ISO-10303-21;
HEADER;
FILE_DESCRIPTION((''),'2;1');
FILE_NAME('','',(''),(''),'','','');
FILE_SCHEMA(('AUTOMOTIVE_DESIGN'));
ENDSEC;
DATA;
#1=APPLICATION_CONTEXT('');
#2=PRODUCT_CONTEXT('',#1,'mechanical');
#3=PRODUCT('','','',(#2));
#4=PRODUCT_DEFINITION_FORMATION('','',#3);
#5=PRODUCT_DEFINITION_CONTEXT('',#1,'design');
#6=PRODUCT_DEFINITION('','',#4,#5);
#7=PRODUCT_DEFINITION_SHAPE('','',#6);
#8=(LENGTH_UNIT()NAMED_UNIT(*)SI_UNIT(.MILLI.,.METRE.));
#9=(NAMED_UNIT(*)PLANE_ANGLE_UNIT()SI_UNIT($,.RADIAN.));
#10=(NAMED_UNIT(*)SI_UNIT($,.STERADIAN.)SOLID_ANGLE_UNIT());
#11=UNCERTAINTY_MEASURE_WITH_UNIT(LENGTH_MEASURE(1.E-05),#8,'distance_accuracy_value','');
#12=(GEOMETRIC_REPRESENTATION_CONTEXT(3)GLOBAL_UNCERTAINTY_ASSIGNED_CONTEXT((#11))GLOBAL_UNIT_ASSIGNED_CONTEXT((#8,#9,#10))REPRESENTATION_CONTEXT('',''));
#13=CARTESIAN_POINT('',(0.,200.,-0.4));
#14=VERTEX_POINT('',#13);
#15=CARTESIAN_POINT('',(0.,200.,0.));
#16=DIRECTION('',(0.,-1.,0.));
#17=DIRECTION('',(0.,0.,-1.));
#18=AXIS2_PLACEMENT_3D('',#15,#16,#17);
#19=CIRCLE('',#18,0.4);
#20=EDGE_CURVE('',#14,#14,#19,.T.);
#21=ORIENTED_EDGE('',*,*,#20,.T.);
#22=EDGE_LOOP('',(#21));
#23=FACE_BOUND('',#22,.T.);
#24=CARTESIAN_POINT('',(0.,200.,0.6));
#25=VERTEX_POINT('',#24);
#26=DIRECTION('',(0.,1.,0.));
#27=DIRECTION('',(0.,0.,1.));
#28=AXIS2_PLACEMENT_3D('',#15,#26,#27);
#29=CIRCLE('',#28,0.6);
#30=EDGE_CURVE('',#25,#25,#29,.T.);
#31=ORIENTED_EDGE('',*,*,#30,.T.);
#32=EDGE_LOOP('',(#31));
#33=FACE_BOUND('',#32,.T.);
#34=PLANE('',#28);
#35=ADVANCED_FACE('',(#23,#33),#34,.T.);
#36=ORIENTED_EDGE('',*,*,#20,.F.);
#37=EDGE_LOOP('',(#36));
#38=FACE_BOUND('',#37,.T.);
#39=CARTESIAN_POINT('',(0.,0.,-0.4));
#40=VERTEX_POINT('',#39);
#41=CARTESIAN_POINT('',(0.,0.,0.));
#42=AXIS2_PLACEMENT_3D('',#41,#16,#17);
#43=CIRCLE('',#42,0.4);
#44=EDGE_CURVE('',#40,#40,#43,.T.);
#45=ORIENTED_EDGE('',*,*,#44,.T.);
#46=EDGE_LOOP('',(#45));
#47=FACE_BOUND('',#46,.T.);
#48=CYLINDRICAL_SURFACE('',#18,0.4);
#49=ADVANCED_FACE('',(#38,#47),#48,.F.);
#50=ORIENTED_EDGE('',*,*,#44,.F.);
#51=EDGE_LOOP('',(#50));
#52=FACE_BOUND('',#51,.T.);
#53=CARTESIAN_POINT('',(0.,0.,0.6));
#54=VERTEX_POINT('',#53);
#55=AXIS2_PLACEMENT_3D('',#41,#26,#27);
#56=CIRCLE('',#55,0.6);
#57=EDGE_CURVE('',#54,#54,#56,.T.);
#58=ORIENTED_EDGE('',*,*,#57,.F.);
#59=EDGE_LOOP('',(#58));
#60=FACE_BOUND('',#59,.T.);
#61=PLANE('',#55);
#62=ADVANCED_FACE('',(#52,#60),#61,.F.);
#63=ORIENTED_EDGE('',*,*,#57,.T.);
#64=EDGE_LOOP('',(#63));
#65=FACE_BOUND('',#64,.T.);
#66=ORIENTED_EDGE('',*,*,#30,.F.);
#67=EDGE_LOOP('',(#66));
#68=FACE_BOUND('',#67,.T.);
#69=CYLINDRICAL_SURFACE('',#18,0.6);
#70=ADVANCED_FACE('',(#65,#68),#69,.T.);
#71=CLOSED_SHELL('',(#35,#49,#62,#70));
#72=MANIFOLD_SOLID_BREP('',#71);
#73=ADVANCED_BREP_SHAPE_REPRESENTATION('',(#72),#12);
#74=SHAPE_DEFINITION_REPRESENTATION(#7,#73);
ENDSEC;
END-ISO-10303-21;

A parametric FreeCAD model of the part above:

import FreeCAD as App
import Part
import Sketcher

doc = App.newDocument("Part")
params = doc.addObject("Spreadsheet::Sheet", "Params")
for row, (alias, value) in enumerate([
    ("sketch1_diameter", "1.2 mm"),
    ("pad1_length", "200 mm"),
    ("sketch2_diameter", "0.8 mm"),
], start=1):
    params.set(f"A{row}", alias)
    params.set(f"B{row}", "=" + value)
    params.setAlias(f"B{row}", alias)

body = doc.addObject("PartDesign::Body", "Body")

# Sketch on XZ plane
sketch1 = body.newObject("Sketcher::SketchObject", "Sketch")
sketch1.AttachmentSupport = (doc.getObject("XZ_Plane"), [""])
sketch1.MapMode = "FlatFace"
sketch1.addGeometry(Part.Circle(App.Vector(0, 0, 0), App.Vector(0, 0, 1), 0.6), False)
sketch1.addConstraint([
    Sketcher.Constraint("Coincident", 0, 3, -1, 1),
    Sketcher.Constraint("Diameter", 0, 1.2),
])
sketch1.setExpression("Constraints[1]", "Params.sketch1_diameter")
pad1 = body.newObject("PartDesign::Pad", "Pad")
pad1.Profile = sketch1
pad1.setExpression("Length", "Params.pad1_length")
pad1.Reversed = True

# Sketch on XZ plane
sketch2 = body.newObject("Sketcher::SketchObject", "Sketch001")
sketch2.AttachmentSupport = (doc.getObject("XZ_Plane"), [""])
sketch2.MapMode = "FlatFace"
sketch2.addGeometry(Part.Circle(App.Vector(0, 0, 0), App.Vector(0, 0, 1), 0.4), False)
sketch2.addConstraint([
    Sketcher.Constraint("Coincident", 0, 3, -1, 1),
    Sketcher.Constraint("Diameter", 0, 0.8),
])
sketch2.setExpression("Constraints[1]", "Params.sketch2_diameter")
pocket1 = body.newObject("PartDesign::Pocket", "Pocket")
pocket1.Profile = sketch2
pocket1.Type = "ThroughAll"

doc.recompute()
